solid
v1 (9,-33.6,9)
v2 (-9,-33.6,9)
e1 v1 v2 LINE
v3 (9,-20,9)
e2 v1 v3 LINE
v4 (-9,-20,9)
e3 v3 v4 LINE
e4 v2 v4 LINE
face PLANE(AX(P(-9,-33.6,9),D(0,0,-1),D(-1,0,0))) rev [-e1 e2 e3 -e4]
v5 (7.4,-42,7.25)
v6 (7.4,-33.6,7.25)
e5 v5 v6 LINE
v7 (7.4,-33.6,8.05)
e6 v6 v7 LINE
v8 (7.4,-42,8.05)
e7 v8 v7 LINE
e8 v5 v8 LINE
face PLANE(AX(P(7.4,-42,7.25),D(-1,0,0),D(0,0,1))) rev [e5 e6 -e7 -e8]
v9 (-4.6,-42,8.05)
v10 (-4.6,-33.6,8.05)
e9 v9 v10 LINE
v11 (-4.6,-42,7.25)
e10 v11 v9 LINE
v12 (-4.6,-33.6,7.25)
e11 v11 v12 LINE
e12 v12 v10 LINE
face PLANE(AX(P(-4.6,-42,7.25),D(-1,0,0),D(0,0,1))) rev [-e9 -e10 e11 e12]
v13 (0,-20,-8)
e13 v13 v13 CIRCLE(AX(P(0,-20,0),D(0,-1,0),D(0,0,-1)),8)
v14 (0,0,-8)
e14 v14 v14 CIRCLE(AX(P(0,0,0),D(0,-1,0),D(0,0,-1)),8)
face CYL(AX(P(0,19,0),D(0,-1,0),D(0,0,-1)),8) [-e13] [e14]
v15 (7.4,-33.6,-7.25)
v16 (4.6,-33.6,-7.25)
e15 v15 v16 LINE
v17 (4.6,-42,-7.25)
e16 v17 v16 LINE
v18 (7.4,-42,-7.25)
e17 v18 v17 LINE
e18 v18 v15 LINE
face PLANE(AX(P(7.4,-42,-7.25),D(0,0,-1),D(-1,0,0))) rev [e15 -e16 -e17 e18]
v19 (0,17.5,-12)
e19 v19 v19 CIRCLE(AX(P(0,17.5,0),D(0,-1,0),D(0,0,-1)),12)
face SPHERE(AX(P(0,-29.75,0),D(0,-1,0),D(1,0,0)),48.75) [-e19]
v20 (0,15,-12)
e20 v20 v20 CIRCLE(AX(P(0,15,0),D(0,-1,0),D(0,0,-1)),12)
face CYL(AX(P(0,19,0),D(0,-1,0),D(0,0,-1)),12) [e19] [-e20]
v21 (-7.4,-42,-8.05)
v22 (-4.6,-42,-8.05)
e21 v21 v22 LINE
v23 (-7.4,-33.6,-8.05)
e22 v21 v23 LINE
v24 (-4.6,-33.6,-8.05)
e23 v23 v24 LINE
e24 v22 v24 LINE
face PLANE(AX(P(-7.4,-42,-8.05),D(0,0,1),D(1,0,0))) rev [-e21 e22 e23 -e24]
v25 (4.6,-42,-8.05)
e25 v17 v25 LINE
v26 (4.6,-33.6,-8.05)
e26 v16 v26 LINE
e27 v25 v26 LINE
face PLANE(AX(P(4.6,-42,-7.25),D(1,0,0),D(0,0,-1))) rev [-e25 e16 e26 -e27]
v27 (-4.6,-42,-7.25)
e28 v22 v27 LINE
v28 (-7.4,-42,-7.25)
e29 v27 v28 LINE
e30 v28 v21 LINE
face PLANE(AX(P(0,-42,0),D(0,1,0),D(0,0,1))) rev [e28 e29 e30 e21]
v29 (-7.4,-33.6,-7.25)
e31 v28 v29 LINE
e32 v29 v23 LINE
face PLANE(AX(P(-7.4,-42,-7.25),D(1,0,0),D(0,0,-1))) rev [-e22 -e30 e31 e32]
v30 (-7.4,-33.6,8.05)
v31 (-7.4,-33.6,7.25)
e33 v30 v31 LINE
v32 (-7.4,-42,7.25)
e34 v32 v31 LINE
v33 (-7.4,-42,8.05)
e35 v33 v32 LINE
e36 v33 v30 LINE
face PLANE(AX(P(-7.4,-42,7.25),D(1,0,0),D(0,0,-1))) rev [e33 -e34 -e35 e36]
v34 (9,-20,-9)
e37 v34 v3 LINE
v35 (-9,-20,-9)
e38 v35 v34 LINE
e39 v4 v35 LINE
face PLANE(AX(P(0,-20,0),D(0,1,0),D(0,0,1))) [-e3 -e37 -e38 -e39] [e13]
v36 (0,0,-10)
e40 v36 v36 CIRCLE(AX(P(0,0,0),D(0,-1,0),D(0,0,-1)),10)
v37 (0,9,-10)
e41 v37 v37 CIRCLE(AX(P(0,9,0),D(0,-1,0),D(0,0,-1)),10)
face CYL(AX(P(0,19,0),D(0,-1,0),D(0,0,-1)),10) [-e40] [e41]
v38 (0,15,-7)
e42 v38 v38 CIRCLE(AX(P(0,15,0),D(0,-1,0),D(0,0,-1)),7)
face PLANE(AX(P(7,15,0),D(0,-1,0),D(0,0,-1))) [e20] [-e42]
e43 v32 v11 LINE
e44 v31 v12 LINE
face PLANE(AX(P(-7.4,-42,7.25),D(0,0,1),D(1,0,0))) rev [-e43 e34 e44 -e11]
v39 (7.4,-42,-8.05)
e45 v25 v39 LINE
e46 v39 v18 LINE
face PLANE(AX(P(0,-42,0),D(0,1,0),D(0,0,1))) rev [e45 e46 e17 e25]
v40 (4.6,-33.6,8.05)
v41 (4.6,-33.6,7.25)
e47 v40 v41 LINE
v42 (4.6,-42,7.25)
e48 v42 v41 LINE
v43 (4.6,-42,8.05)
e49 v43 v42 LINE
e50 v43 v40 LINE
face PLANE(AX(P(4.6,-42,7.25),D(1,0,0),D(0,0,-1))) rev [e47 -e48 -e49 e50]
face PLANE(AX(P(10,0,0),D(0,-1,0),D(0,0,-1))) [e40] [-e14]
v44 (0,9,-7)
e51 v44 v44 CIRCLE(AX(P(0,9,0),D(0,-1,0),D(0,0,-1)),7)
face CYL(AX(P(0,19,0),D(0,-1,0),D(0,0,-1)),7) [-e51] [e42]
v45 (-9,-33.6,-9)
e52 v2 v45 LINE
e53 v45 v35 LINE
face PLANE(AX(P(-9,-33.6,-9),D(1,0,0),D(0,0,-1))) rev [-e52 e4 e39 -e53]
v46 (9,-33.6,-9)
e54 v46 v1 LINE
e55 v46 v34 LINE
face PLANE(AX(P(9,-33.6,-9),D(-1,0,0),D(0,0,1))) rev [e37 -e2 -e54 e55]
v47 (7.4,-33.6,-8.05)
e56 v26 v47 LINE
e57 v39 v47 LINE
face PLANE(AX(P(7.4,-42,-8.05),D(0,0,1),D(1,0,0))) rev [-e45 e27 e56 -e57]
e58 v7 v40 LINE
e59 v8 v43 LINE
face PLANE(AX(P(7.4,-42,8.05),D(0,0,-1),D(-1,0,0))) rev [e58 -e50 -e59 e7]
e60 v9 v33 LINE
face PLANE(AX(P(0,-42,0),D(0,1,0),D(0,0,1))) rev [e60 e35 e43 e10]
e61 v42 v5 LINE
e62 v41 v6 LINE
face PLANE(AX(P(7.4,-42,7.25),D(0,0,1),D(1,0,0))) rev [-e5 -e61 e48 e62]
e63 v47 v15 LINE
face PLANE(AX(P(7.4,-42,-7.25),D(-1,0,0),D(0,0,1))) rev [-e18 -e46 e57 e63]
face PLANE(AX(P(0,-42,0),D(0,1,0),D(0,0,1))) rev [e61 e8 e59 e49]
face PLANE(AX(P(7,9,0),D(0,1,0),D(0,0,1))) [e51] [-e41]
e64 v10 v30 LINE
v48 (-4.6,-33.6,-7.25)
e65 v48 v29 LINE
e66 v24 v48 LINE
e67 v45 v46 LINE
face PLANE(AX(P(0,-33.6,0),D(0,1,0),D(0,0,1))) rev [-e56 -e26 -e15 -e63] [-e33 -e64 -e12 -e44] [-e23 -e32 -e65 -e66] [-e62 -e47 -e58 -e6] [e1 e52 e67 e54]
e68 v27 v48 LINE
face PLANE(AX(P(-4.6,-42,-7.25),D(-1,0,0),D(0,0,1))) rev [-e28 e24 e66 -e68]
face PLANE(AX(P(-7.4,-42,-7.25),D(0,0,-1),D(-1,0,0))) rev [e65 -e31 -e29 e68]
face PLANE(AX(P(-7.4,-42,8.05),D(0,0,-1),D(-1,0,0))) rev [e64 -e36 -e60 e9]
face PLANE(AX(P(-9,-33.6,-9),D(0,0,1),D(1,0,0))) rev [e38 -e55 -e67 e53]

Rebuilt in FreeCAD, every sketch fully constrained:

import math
import FreeCAD as App
import Part
import Sketcher


def add_polygon(sketch, points):
    """Adds a closed chain of lines whose ends are joined by coincident constraints."""
    first, n = sketch.GeometryCount, len(points)
    for a, b in zip(points, points[1:] + points[:1]):
        sketch.addGeometry(Part.LineSegment(App.Vector(*a, 0), App.Vector(*b, 0)), False)
    for i in range(n):
        sketch.addConstraint(Sketcher.Constraint("Coincident", first + i, 2, first + (i + 1) % n, 1))

doc = App.newDocument("Part")
params = doc.addObject("Spreadsheet::Sheet", "Params")
for row, (alias, value) in enumerate([
    ("sketch1_width", "8 mm"),
    ("sketch1_width2", "2 mm"),
    ("sketch1_width3", "3 mm"),
    ("sketch1_width4", "5 mm"),
    ("sketch1_height", "39 mm"),
    ("revolution_angle", "360 deg"),
    ("sketch2_width", "18 mm"),
    ("pad1_length", "13.6 mm"),
    ("sketch3_width", "2.8 mm"),
    ("sketch3_height", "0.8 mm"),
    ("pad2_length", "8.4 mm"),
], start=1):
    params.set(f"A{row}", alias)
    params.set(f"B{row}", "=" + value)
    params.setAlias(f"B{row}", alias)

body = doc.addObject("PartDesign::Body", "Body")

# Sketch on XY plane
sketch1 = doc.addObject("Sketcher::SketchObject", "Sketch")
body.addObject(sketch1)
sketch1.AttachmentSupport = (doc.XY_Plane, [""])
sketch1.MapMode = "FlatFace"
sketch1.addGeometry([
    Part.LineSegment(App.Vector(0, 19, 0), App.Vector(0, -20, 0)),  # 0
    Part.LineSegment(App.Vector(0, -20, 0), App.Vector(8, -20, 0)),  # 1
    Part.LineSegment(App.Vector(8, -20, 0), App.Vector(8, 0, 0)),  # 2
    Part.LineSegment(App.Vector(8, 0, 0), App.Vector(10, 0, 0)),  # 3
    Part.LineSegment(App.Vector(10, 0, 0), App.Vector(10, 9, 0)),  # 4
    Part.LineSegment(App.Vector(10, 9, 0), App.Vector(7, 9, 0)),  # 5
    Part.LineSegment(App.Vector(7, 9, 0), App.Vector(7, 15, 0)),  # 6
    Part.LineSegment(App.Vector(7, 15, 0), App.Vector(12, 15, 0)),  # 7
    Part.LineSegment(App.Vector(12, 15, 0), App.Vector(12, 17.5, 0)),  # 8
    Part.ArcOfCircle(Part.Circle(App.Vector(0, -29.75, 0), App.Vector(0, 0, 1), 48.75), math.radians(75.749967), math.radians(90)),  # 9
], False)
sketch1.addConstraint([
    Sketcher.Constraint("Coincident", 0, 2, 1, 1),
    Sketcher.Constraint("Coincident", 1, 2, 2, 1),
    Sketcher.Constraint("Coincident", 2, 2, 3, 1),
    Sketcher.Constraint("Coincident", 3, 2, 4, 1),
    Sketcher.Constraint("Coincident", 4, 2, 5, 1),
    Sketcher.Constraint("Coincident", 5, 2, 6, 1),
    Sketcher.Constraint("Coincident", 6, 2, 7, 1),
    Sketcher.Constraint("Coincident", 7, 2, 8, 1),
    Sketcher.Constraint("Coincident", 8, 2, 9, 1),
    Sketcher.Constraint("Coincident", 9, 2, 0, 1),
    Sketcher.Constraint("Vertical", 0),
    Sketcher.Constraint("Horizontal", 1),
    Sketcher.Constraint("Vertical", 2),
    Sketcher.Constraint("Horizontal", 3),
    Sketcher.Constraint("Vertical", 4),
    Sketcher.Constraint("Horizontal", 5),
    Sketcher.Constraint("Vertical", 6),
    Sketcher.Constraint("Horizontal", 7),
    Sketcher.Constraint("Vertical", 8),
    Sketcher.Constraint("PointOnObject", 9, 3, -2),
    Sketcher.Constraint("PointOnObject", 0, 2, -2),
    Sketcher.Constraint("PointOnObject", 2, 2, -1),
    Sketcher.Constraint("DistanceX", 1, 1, 1, 2, 8.0),
    Sketcher.Constraint("DistanceX", 3, 1, 3, 2, 2.0),
    Sketcher.Constraint("DistanceX", 5, 2, 5, 1, 3.0),
    Sketcher.Constraint("DistanceX", 7, 1, 7, 2, 5.0),
    Sketcher.Constraint("DistanceY", 0, 2, 0, 1, 39.0),
    Sketcher.Constraint("DistanceY", 2, 1, 2, 2, 20.0),
    Sketcher.Constraint("DistanceY", 4, 1, 4, 2, 9.0),
    Sketcher.Constraint("DistanceY", 6, 1, 6, 2, 6.0),
    Sketcher.Constraint("Radius", 9, 48.75),
])
sketch1.setExpression("Constraints[22]", "Params.sketch1_width")
sketch1.setExpression("Constraints[23]", "Params.sketch1_width2")
sketch1.setExpression("Constraints[24]", "Params.sketch1_width3")
sketch1.setExpression("Constraints[25]", "Params.sketch1_width4")
sketch1.setExpression("Constraints[26]", "Params.sketch1_height")
revolution = doc.addObject("PartDesign::Revolution", "Revolution")
body.addObject(revolution)
revolution.Profile = sketch1
revolution.ReferenceAxis = (sketch1, ["V_Axis"])
revolution.setExpression("Angle", "Params.revolution_angle")

# Sketch on XZ plane
sketch2 = doc.addObject("Sketcher::SketchObject", "Sketch001")
body.addObject(sketch2)
sketch2.AttachmentSupport = (doc.XZ_Plane, [""])
sketch2.MapMode = "FlatFace"
sketch2.AttachmentOffset = App.Placement(App.Vector(0, 0, 20), App.Rotation())
add_polygon(sketch2, [(-9, 9), (-9, -9), (9, -9), (9, 9)])  # lines 0-3
sketch2.addConstraint([
    Sketcher.Constraint("Vertical", 0),
    Sketcher.Constraint("Horizontal", 1),
    Sketcher.Constraint("Vertical", 2),
    Sketcher.Constraint("Horizontal", 3),
    Sketcher.Constraint("Symmetric", 0, 2, 2, 2, -1, 1),
    Sketcher.Constraint("Equal", 3, 0),
    Sketcher.Constraint("DistanceX", 1, 1, 1, 2, 18.0),
])
sketch2.setExpression("Constraints[10]", "Params.sketch2_width")
pad1 = doc.addObject("PartDesign::Pad", "Pad")
body.addObject(pad1)
pad1.Profile = sketch2
pad1.setExpression("Length", "Params.pad1_length")

# Sketch on XZ plane
sketch3 = doc.addObject("Sketcher::SketchObject", "Sketch002")
body.addObject(sketch3)
sketch3.AttachmentSupport = (doc.XZ_Plane, [""])
sketch3.MapMode = "FlatFace"
sketch3.AttachmentOffset = App.Placement(App.Vector(0, 0, 33.6), App.Rotation())
add_polygon(sketch3, [(-7.4, 8.05), (-7.4, 7.25), (-4.6, 7.25), (-4.6, 8.05)])  # lines 0-3
add_polygon(sketch3, [(4.6, 8.05), (4.6, 7.25), (7.4, 7.25), (7.4, 8.05)])  # lines 4-7
add_polygon(sketch3, [(4.6, -7.25), (4.6, -8.05), (7.4, -8.05), (7.4, -7.25)])  # lines 8-11
add_polygon(sketch3, [(-7.4, -7.25), (-7.4, -8.05), (-4.6, -8.05), (-4.6, -7.25)])  # lines 12-15
sketch3.addConstraint([
    Sketcher.Constraint("Vertical", 0),
    Sketcher.Constraint("Horizontal", 1),
    Sketcher.Constraint("Vertical", 2),
    Sketcher.Constraint("Horizontal", 3),
    Sketcher.Constraint("Vertical", 4),
    Sketcher.Constraint("Horizontal", 5),
    Sketcher.Constraint("Vertical", 6),
    Sketcher.Constraint("Horizontal", 7),
    Sketcher.Constraint("Vertical", 8),
    Sketcher.Constraint("Horizontal", 9),
    Sketcher.Constraint("Vertical", 10),
    Sketcher.Constraint("Horizontal", 11),
    Sketcher.Constraint("Vertical", 12),
    Sketcher.Constraint("Horizontal", 13),
    Sketcher.Constraint("Vertical", 14),
    Sketcher.Constraint("Horizontal", 15),
    Sketcher.Constraint("Symmetric", 2, 2, 8, 2, -1, 1),
    Sketcher.Constraint("Symmetric", 0, 2, 10, 2, -1, 1),
    Sketcher.Constraint("Symmetric", 6, 2, 12, 2, -1, 1),
    Sketcher.Constraint("Symmetric", 4, 2, 14, 2, -1, 1),
    Sketcher.Constraint("Symmetric", 1, 2, 4, 2, -2),
    Sketcher.Constraint("Symmetric", 3, 2, 6, 2, -2),
    Sketcher.Constraint("DistanceX", 1, 1, 1, 2, 2.8),
    Sketcher.Constraint("DistanceY", 0, 2, 0, 1, 0.8),
    Sketcher.Constraint("DistanceX", 0, 2, 4, 2, 12.0),
    Sketcher.Constraint("DistanceY", 8, 2, 4, 2, 15.3),
])
sketch3.setExpression("Constraints[38]", "Params.sketch3_width")
sketch3.setExpression("Constraints[39]", "Params.sketch3_height")
pad2 = doc.addObject("PartDesign::Pad", "Pad001")
body.addObject(pad2)
pad2.Profile = sketch3
pad2.setExpression("Length", "Params.pad2_length")

doc.recompute()
